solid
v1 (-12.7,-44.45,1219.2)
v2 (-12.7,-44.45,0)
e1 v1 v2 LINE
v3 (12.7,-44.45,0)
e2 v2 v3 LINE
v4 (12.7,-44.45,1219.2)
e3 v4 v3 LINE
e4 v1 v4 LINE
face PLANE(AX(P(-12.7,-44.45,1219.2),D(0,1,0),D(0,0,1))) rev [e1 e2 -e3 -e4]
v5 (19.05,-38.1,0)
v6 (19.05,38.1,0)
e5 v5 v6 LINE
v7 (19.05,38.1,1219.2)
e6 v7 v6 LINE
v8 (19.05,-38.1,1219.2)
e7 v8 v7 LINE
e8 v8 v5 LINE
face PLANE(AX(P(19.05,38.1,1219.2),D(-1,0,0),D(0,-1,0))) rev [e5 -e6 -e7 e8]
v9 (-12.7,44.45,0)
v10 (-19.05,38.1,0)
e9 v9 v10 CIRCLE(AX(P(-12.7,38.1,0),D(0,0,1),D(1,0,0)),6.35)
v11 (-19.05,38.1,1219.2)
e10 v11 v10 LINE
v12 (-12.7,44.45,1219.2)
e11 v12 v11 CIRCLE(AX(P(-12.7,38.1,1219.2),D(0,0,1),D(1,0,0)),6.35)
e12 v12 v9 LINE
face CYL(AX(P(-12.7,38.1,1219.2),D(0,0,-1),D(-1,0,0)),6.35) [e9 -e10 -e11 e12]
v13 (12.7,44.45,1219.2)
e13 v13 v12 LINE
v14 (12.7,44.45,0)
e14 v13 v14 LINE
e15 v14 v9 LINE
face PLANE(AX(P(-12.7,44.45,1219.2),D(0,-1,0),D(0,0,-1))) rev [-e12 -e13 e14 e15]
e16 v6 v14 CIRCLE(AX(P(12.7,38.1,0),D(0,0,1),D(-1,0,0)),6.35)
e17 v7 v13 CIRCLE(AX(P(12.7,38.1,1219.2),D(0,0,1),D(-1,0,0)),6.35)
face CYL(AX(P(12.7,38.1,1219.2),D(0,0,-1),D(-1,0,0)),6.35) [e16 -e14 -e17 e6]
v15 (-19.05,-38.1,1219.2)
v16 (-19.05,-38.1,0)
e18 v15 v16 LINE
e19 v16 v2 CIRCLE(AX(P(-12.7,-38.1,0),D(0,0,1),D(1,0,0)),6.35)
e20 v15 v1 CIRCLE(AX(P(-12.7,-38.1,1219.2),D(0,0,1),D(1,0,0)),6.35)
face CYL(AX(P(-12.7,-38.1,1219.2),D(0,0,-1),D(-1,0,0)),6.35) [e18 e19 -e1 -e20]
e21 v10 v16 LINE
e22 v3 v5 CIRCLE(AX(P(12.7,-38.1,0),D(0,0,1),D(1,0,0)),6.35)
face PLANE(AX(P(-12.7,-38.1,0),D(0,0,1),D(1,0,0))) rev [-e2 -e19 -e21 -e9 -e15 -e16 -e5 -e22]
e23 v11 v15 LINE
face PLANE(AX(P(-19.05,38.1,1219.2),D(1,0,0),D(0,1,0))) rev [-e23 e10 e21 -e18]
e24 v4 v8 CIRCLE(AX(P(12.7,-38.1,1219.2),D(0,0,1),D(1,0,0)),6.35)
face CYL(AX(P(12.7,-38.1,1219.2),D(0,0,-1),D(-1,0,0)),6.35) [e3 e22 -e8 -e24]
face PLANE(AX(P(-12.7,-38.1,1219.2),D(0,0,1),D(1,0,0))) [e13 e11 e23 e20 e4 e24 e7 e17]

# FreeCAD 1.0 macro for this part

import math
import FreeCAD as App
import Part
import Sketcher

V = App.Vector
Q = App.Units.Quantity

doc = App.newDocument("Part")
body = doc.addObject("PartDesign::Body", "Body")

sketch1 = body.newObject("Sketcher::SketchObject", "Sketch")
sketch1.AttachmentSupport = (doc.getObject("XY_Plane"), [""])
sketch1.MapMode = "FlatFace"
sketch1.addGeometry([
    Part.LineSegment(V(13, 44, 0), V(-13, 44, 0)),
    Part.ArcOfCircle(Part.Circle(V(-13, 38, 0), V(0, 0, 1), 6), math.radians(90), math.radians(180)),
    Part.LineSegment(V(-19, 38, 0), V(-19, -38, 0)),
    Part.ArcOfCircle(Part.Circle(V(-13, -38, 0), V(0, 0, 1), 6), math.radians(180), math.radians(270)),
    Part.LineSegment(V(-13, -44, 0), V(13, -44, 0)),
    Part.ArcOfCircle(Part.Circle(V(13, -38, 0), V(0, 0, 1), 6), math.radians(-90), math.radians(0)),
    Part.LineSegment(V(19, -38, 0), V(19, 38, 0)),
    Part.ArcOfCircle(Part.Circle(V(13, 38, 0), V(0, 0, 1), 6), math.radians(0), math.radians(90)),
], False)
sketch1.addConstraint([
    Sketcher.Constraint("Tangent", 0, 2, 1, 1),
    Sketcher.Constraint("Tangent", 1, 2, 2, 1),
    Sketcher.Constraint("Tangent", 2, 2, 3, 1),
    Sketcher.Constraint("Tangent", 3, 2, 4, 1),
    Sketcher.Constraint("Tangent", 4, 2, 5, 1),
    Sketcher.Constraint("Tangent", 5, 2, 6, 1),
    Sketcher.Constraint("Tangent", 6, 2, 7, 1),
    Sketcher.Constraint("Tangent", 7, 2, 0, 1),
    Sketcher.Constraint("Horizontal", 0),
    Sketcher.Constraint("Vertical", 2),
    Sketcher.Constraint("Horizontal", 4),
    Sketcher.Constraint("Vertical", 6),
    Sketcher.Constraint("Equal", 1, 3),
    Sketcher.Constraint("Equal", 3, 5),
    Sketcher.Constraint("Equal", 5, 7),
    Sketcher.Constraint("Symmetric", 1, 3, 5, 3, -1, 1),
    Sketcher.Constraint("DistanceX", 0, 2, 0, 1, Q("1 in")),
    Sketcher.Constraint("DistanceY", 2, 2, 2, 1, Q("3 in")),
    Sketcher.Constraint("Radius", 1, Q("0.25 in")),
])
pad1 = body.newObject("PartDesign::Pad", "Pad")
pad1.Profile = sketch1
pad1.Length = Q("48 in")

doc.recompute()
